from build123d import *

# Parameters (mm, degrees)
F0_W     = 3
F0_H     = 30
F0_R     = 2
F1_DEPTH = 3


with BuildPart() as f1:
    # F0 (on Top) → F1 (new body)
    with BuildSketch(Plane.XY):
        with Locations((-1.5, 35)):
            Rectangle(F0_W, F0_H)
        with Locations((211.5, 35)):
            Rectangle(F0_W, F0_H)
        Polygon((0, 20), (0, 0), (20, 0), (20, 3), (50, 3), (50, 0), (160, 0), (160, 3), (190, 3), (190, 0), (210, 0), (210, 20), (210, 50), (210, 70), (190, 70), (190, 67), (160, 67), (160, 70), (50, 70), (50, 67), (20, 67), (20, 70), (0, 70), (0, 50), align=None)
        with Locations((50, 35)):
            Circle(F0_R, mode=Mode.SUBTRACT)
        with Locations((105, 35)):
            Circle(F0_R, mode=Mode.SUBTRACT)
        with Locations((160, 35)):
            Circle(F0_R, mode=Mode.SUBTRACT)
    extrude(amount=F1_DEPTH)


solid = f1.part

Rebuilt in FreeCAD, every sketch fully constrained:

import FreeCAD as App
import Part
import Sketcher
from FreeCAD import Vector


def add_polygon(sketch, points):
    """Adds a closed chain of lines whose ends are joined by coincident constraints."""
    first, n = sketch.GeometryCount, len(points)
    for a, b in zip(points, points[1:] + points[:1]):
        sketch.addGeometry(Part.LineSegment(App.Vector(*a, 0), App.Vector(*b, 0)), False)
    for i in range(n):
        sketch.addConstraint(Sketcher.Constraint("Coincident", first + i, 2, first + (i + 1) % n, 1))

doc = App.newDocument("Part")
body = doc.addObject("PartDesign::Body", "Body")

# Sketch on XY plane
sketch1 = body.newObject("Sketcher::SketchObject", "Sketch")
sketch1.AttachmentSupport = (doc.getObject("XY_Plane"), [""])
sketch1.MapMode = "FlatFace"
add_polygon(sketch1, [(-3, 50), (-3, 20), (0, 20), (0, 0), (20, 0), (20, 3), (50, 3), (50, 0), (160, 0), (160, 3), (190, 3), (190, 0), (210, 0), (210, 20), (213, 20), (213, 50), (210, 50), (210, 70), (190, 70), (190, 67), (160, 67), (160, 70), (50, 70), (50, 67), (20, 67), (20, 70), (0, 70), (0, 50)])  # lines 0-27
sketch1.addGeometry(Part.Circle(Vector(50, 35, 0), Vector(0, 0, 1), 2), False)  # 28
sketch1.addGeometry(Part.Circle(Vector(105, 35, 0), Vector(0, 0, 1), 2), False)  # 29
sketch1.addGeometry(Part.Circle(Vector(160, 35, 0), Vector(0, 0, 1), 2), False)  # 30
sketch1.addConstraint([
    Sketcher.Constraint("Vertical", 0),
    Sketcher.Constraint("Horizontal", 1),
    Sketcher.Constraint("Vertical", 2),
    Sketcher.Constraint("Horizontal", 3),
    Sketcher.Constraint("Vertical", 4),
    Sketcher.Constraint("Horizontal", 5),
    Sketcher.Constraint("Vertical", 6),
    Sketcher.Constraint("Horizontal", 7),
    Sketcher.Constraint("Vertical", 8),
    Sketcher.Constraint("Horizontal", 9),
    Sketcher.Constraint("Vertical", 10),
    Sketcher.Constraint("Horizontal", 11),
    Sketcher.Constraint("Vertical", 12),
    Sketcher.Constraint("Horizontal", 13),
    Sketcher.Constraint("Vertical", 14),
    Sketcher.Constraint("Horizontal", 15),
    Sketcher.Constraint("Vertical", 16),
    Sketcher.Constraint("Horizontal", 17),
    Sketcher.Constraint("Vertical", 18),
    Sketcher.Constraint("Horizontal", 19),
    Sketcher.Constraint("Vertical", 20),
    Sketcher.Constraint("Horizontal", 21),
    Sketcher.Constraint("Vertical", 22),
    Sketcher.Constraint("Horizontal", 23),
    Sketcher.Constraint("Vertical", 24),
    Sketcher.Constraint("Horizontal", 25),
    Sketcher.Constraint("Vertical", 26),
    Sketcher.Constraint("Horizontal", 27),
    Sketcher.Constraint("Coincident", 2, 2, -1, 1),
    Sketcher.Constraint("Equal", 28, 29),
    Sketcher.Constraint("Equal", 29, 30),
    Sketcher.Constraint("PointOnObject", 6, 2, -1),
    Sketcher.Constraint("PointOnObject", 10, 2, -1),
    Sketcher.Constraint("PointOnObject", 25, 2, -2),
    Sketcher.Constraint("Horizontal", 28, 3, 29, 3),
    Sketcher.Constraint("Horizontal", 29, 3, 30, 3),
    Sketcher.Constraint("Horizontal", 5, 2, 8, 2),
    Sketcher.Constraint("Horizontal", 1, 2, 12, 2),
    Sketcher.Constraint("Horizontal", 17, 2, 20, 2),
    Sketcher.Constraint("Horizontal", 19, 2, 22, 2),
    Sketcher.Constraint("Horizontal", 21, 2, 24, 2),
    Sketcher.Constraint("Horizontal", 15, 2, 26, 2),
    Sketcher.Constraint("Vertical", 28, 3, 5, 2),
    Sketcher.Constraint("Vertical", 30, 3, 7, 2),
    Sketcher.Constraint("Vertical", 12, 2, 15, 2),
    Sketcher.Constraint("Vertical", 10, 2, 17, 2),
    Sketcher.Constraint("Vertical", 8, 2, 19, 2),
    Sketcher.Constraint("Vertical", 6, 2, 21, 2),
    Sketcher.Constraint("Vertical", 4, 2, 23, 2),
    Sketcher.Constraint("Equal", 5, 9),
    Sketcher.Constraint("Equal", 3, 11),
    Sketcher.Constraint("Equal", 1, 13),
    Sketcher.Constraint("Equal", 23, 0),
    Sketcher.Constraint("Equal", 25, 2),
    Sketcher.Constraint("Equal", 27, 4),
    Sketcher.Constraint("Equal", 12, 16),
    Sketcher.Constraint("Equal", 10, 18),
    Sketcher.Constraint("Diameter", 28, 4.0),
    Sketcher.Constraint("DistanceX", 1, 1, 1, 2, 3.0),
    Sketcher.Constraint("DistanceX", 3, 1, 3, 2, 20.0),
    Sketcher.Constraint("DistanceX", 5, 1, 5, 2, 30.0),
    Sketcher.Constraint("DistanceX", 7, 1, 7, 2, 110.0),
    Sketcher.Constraint("DistanceY", -1, 1, 28, 3, 35.0),
    Sketcher.Constraint("DistanceX", -1, 1, 29, 3, 105.0),
])
pad1 = body.newObject("PartDesign::Pad", "Pad")
pad1.Profile = sketch1
pad1.Length = 3

doc.recompute()
